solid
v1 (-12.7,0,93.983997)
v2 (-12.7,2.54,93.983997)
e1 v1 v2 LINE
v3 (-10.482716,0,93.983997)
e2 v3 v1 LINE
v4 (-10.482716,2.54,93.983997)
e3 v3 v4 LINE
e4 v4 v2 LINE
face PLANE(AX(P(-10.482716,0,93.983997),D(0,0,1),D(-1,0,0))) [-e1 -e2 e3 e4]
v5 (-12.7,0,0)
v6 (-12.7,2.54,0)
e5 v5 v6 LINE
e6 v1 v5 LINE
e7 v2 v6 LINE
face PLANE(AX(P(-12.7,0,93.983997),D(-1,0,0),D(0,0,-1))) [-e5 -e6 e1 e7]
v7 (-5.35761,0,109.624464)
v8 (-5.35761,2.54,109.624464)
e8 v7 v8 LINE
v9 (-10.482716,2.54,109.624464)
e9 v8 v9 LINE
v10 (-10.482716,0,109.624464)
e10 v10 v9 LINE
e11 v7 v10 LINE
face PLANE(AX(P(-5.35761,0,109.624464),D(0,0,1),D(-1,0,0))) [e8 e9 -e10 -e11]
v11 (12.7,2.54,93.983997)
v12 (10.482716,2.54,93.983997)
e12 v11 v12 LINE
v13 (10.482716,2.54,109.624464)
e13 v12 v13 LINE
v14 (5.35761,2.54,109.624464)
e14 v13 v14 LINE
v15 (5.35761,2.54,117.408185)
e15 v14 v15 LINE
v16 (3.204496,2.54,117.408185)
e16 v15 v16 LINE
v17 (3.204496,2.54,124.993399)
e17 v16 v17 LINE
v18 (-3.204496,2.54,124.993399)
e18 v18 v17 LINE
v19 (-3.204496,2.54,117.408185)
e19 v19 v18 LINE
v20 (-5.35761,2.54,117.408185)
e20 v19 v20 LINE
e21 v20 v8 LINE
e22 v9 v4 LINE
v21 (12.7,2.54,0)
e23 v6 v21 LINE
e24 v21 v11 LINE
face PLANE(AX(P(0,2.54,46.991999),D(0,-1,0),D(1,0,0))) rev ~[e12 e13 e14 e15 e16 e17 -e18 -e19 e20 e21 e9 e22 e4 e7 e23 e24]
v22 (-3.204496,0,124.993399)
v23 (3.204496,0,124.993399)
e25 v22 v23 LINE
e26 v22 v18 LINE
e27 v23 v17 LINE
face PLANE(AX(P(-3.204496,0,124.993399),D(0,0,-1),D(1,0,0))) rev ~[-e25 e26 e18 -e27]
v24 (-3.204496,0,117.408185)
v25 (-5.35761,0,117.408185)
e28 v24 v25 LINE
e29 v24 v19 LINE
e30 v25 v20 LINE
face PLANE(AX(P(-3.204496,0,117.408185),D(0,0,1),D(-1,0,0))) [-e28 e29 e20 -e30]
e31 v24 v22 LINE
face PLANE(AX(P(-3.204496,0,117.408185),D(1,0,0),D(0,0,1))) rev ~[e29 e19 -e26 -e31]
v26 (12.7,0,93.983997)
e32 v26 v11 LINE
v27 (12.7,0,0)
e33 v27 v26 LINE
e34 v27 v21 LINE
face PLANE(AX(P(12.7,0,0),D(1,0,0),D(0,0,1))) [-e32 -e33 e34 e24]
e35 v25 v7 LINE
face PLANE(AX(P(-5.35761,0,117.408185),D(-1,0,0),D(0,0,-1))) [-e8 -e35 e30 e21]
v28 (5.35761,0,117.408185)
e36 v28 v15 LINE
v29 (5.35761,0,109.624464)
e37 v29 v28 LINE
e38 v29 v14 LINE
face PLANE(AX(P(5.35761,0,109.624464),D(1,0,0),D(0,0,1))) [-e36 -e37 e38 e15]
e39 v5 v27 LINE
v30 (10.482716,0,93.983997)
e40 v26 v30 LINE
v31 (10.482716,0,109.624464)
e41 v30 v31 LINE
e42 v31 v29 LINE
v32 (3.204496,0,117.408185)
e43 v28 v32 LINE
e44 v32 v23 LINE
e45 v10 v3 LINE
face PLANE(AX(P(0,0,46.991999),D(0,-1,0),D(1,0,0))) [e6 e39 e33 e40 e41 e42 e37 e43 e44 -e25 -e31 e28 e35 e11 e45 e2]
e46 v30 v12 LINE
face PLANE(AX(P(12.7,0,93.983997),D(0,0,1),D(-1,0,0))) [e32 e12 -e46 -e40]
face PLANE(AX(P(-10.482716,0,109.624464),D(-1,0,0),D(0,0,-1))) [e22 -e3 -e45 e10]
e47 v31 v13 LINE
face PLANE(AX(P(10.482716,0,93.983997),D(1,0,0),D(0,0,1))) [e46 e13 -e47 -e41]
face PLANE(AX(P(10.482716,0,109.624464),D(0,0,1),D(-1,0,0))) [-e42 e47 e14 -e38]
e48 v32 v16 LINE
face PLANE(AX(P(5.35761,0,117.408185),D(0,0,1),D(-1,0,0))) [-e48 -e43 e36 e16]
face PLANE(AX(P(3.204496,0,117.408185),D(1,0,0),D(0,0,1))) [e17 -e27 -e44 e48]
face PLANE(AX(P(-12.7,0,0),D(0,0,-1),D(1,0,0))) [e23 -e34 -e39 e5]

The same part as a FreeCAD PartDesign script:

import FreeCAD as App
import Part
import Sketcher
from FreeCAD import Vector
Q = App.Units.Quantity

doc = App.newDocument("Part")
params = doc.addObject("Spreadsheet::Sheet", "Params")
for row, (alias, value) in enumerate([
    ("sketch1_width", "1 in"),
    ("pad1_length", "0.1 in"),
], start=1):
    params.set(f"A{row}", alias)
    params.set(f"B{row}", "=" + value)
    params.setAlias(f"B{row}", alias)

body = doc.addObject("PartDesign::Body", "Body")

# Sketch on XZ plane
sketch1 = doc.addObject("Sketcher::SketchObject", "Sketch")
body.addObject(sketch1)
sketch1.AttachmentSupport = (doc.XZ_Plane, [""])
sketch1.MapMode = "FlatFace"
sketch1.addGeometry(Part.LineSegment(Vector(-12.7, 94, 0), Vector(-12.7, 0, 0)), False)
sketch1.addGeometry(Part.LineSegment(Vector(-12.7, 0, 0), Vector(12.7, 0, 0)), False)
sketch1.addGeometry(Part.LineSegment(Vector(12.7, 0, 0), Vector(12.7, 94, 0)), False)
sketch1.addGeometry(Part.LineSegment(Vector(12.7, 94, 0), Vector(10.5, 94, 0)), False)
sketch1.addGeometry(Part.LineSegment(Vector(10.5, 94, 0), Vector(10.5, 109.6, 0)), False)
sketch1.addGeometry(Part.LineSegment(Vector(10.5, 109.6, 0), Vector(5.4, 109.6, 0)), False)
sketch1.addGeometry(Part.LineSegment(Vector(5.4, 109.6, 0), Vector(5.4, 117.4, 0)), False)
sketch1.addGeometry(Part.LineSegment(Vector(5.4, 117.4, 0), Vector(3.2, 117.4, 0)), False)
sketch1.addGeometry(Part.LineSegment(Vector(3.2, 117.4, 0), Vector(3.2, 125, 0)), False)
sketch1.addGeometry(Part.LineSegment(Vector(3.2, 125, 0), Vector(-3.2, 125, 0)), False)
sketch1.addGeometry(Part.LineSegment(Vector(-3.2, 125, 0), Vector(-3.2, 117.4, 0)), False)
sketch1.addGeometry(Part.LineSegment(Vector(-3.2, 117.4, 0), Vector(-5.4, 117.4, 0)), False)
sketch1.addGeometry(Part.LineSegment(Vector(-5.4, 117.4, 0), Vector(-5.4, 109.6, 0)), False)
sketch1.addGeometry(Part.LineSegment(Vector(-5.4, 109.6, 0), Vector(-10.5, 109.6, 0)), False)
sketch1.addGeometry(Part.LineSegment(Vector(-10.5, 109.6, 0), Vector(-10.5, 94, 0)), False)
sketch1.addGeometry(Part.LineSegment(Vector(-10.5, 94, 0), Vector(-12.7, 94, 0)), False)
sketch1.addConstraint(Sketcher.Constraint("Coincident", 0, 2, 1, 1))
sketch1.addConstraint(Sketcher.Constraint("Coincident", 1, 2, 2, 1))
sketch1.addConstraint(Sketcher.Constraint("Coincident", 2, 2, 3, 1))
sketch1.addConstraint(Sketcher.Constraint("Coincident", 3, 2, 4, 1))
sketch1.addConstraint(Sketcher.Constraint("Coincident", 4, 2, 5, 1))
sketch1.addConstraint(Sketcher.Constraint("Coincident", 5, 2, 6, 1))
sketch1.addConstraint(Sketcher.Constraint("Coincident", 6, 2, 7, 1))
sketch1.addConstraint(Sketcher.Constraint("Coincident", 7, 2, 8, 1))
sketch1.addConstraint(Sketcher.Constraint("Coincident", 8, 2, 9, 1))
sketch1.addConstraint(Sketcher.Constraint("Coincident", 9, 2, 10, 1))
sketch1.addConstraint(Sketcher.Constraint("Coincident", 10, 2, 11, 1))
sketch1.addConstraint(Sketcher.Constraint("Coincident", 11, 2, 12, 1))
sketch1.addConstraint(Sketcher.Constraint("Coincident", 12, 2, 13, 1))
sketch1.addConstraint(Sketcher.Constraint("Coincident", 13, 2, 14, 1))
sketch1.addConstraint(Sketcher.Constraint("Coincident", 14, 2, 15, 1))
sketch1.addConstraint(Sketcher.Constraint("Coincident", 15, 2, 0, 1))
sketch1.addConstraint(Sketcher.Constraint("Vertical", 0))
sketch1.addConstraint(Sketcher.Constraint("Horizontal", 1))
sketch1.addConstraint(Sketcher.Constraint("Vertical", 2))
sketch1.addConstraint(Sketcher.Constraint("Horizontal", 3))
sketch1.addConstraint(Sketcher.Constraint("Vertical", 4))
sketch1.addConstraint(Sketcher.Constraint("Horizontal", 5))
sketch1.addConstraint(Sketcher.Constraint("Vertical", 6))
sketch1.addConstraint(Sketcher.Constraint("Horizontal", 7))
sketch1.addConstraint(Sketcher.Constraint("Vertical", 8))
sketch1.addConstraint(Sketcher.Constraint("Horizontal", 9))
sketch1.addConstraint(Sketcher.Constraint("Vertical", 10))
sketch1.addConstraint(Sketcher.Constraint("Horizontal", 11))
sketch1.addConstraint(Sketcher.Constraint("Vertical", 12))
sketch1.addConstraint(Sketcher.Constraint("Horizontal", 13))
sketch1.addConstraint(Sketcher.Constraint("Vertical", 14))
sketch1.addConstraint(Sketcher.Constraint("Horizontal", 15))
sketch1.addConstraint(Sketcher.Constraint("Symmetric", 0, 2, 1, 2, -1, 1))
sketch1.addConstraint(Sketcher.Constraint("Symmetric", 7, 2, 10, 2, -2))
sketch1.addConstraint(Sketcher.Constraint("Symmetric", 5, 2, 12, 2, -2))
sketch1.addConstraint(Sketcher.Constraint("Symmetric", 3, 2, 14, 2, -2))
sketch1.addConstraint(Sketcher.Constraint("DistanceX", 1, 1, 1, 2, Q("1 in")))
sketch1.addConstraint(Sketcher.Constraint("DistanceY", -1, 1, 8, 2, Q("4.921 in")))
sketch1.addConstraint(Sketcher.Constraint("DistanceX", 9, 2, 9, 1, 6.408992))
sketch1.addConstraint(Sketcher.Constraint("DistanceY", 6, 1, 6, 2, 7.783721))
sketch1.addConstraint(Sketcher.Constraint("DistanceX", 3, 2, 3, 1, 2.217284))
sketch1.addConstraint(Sketcher.Constraint("DistanceX", 5, 2, 5, 1, 5.125106))
sketch1.addConstraint(Sketcher.Constraint("DistanceY", 0, 2, 0, 1, 93.983997))
sketch1.addConstraint(Sketcher.Constraint("DistanceY", 4, 1, 4, 2, 15.640467))
sketch1.setExpression("Constraints[36]", "Params.sketch1_width")
pad1 = doc.addObject("PartDesign::Pad", "Pad")
body.addObject(pad1)
pad1.Profile = sketch1
pad1.setExpression("Length", "Params.pad1_length")
pad1.Reversed = True

doc.recompute()
